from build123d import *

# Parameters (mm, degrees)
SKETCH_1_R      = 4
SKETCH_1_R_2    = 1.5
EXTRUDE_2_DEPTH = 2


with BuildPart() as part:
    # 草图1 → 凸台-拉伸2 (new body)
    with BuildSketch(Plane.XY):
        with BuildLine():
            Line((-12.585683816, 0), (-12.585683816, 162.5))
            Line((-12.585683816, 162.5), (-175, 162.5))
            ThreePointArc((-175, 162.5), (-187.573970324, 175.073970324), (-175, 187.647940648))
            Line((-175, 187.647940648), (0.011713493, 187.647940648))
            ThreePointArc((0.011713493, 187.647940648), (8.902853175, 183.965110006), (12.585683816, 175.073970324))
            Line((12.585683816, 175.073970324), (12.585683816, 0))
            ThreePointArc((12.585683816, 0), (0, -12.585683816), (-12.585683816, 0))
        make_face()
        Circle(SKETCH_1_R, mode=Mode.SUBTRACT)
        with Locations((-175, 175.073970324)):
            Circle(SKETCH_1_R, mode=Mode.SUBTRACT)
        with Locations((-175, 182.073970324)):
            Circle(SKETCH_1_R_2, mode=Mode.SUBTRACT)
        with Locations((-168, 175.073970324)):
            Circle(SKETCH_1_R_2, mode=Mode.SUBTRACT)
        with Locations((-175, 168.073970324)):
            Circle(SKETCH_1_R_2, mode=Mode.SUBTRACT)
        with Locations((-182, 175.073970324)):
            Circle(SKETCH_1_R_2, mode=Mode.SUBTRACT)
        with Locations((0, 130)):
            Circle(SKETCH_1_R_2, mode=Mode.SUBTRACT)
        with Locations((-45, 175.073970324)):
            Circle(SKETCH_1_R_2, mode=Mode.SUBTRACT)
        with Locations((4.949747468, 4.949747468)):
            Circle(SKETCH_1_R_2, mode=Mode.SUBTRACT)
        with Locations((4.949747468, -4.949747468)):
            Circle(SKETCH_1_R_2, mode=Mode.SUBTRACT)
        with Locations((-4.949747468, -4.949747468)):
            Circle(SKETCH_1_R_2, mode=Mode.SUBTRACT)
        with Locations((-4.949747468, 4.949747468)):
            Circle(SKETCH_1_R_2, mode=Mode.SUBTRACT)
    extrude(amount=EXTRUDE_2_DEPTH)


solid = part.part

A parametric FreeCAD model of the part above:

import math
import FreeCAD as App
import Part
import Sketcher
from FreeCAD import Vector
Q = App.Units.Quantity

doc = App.newDocument("Part")
body = doc.addObject("PartDesign::Body", "Body")

# Sketch on XY plane
sketch1 = body.newObject("Sketcher::SketchObject", "Sketch")
sketch1.AttachmentSupport = (doc.getObject("XY_Plane"), [""])
sketch1.MapMode = "FlatFace"
sketch1.addGeometry([
    Part.LineSegment(Vector(-12.585684, 162.5, 0), Vector(-12.585684, 0, 0)),  # 0
    Part.ArcOfCircle(Part.Circle(Vector(0, 0, 0), Vector(0, 0, 1), 12.585684), math.radians(180), math.radians(360)),  # 1
    Part.LineSegment(Vector(12.585684, 0, 0), Vector(12.585684, 175.07397, 0)),  # 2
    Part.ArcOfCircle(Part.Circle(Vector(0.011713, 175.07397, 0), Vector(0, 0, 1), 12.57397), math.radians(0), math.radians(90)),  # 3
    Part.LineSegment(Vector(0.011713, 187.647941, 0), Vector(-175, 187.647941, 0)),  # 4
    Part.ArcOfCircle(Part.Circle(Vector(-175, 175.07397, 0), Vector(0, 0, 1), 12.57397), math.radians(90), math.radians(270)),  # 5
    Part.LineSegment(Vector(-175, 162.5, 0), Vector(-12.585684, 162.5, 0)),  # 6
    Part.Circle(Vector(4.949747, -4.949747, 0), Vector(0, 0, 1), 1.5),  # 7
    Part.Circle(Vector(-4.949747, -4.949747, 0), Vector(0, 0, 1), 1.5),  # 8
    Part.Circle(Vector(4.949747, 4.949747, 0), Vector(0, 0, 1), 1.5),  # 9
    Part.Circle(Vector(0, 0, 0), Vector(0, 0, 1), 4),  # 10
    Part.Circle(Vector(-4.949747, 4.949747, 0), Vector(0, 0, 1), 1.5),  # 11
    Part.Circle(Vector(0, 130, 0), Vector(0, 0, 1), 1.5),  # 12
    Part.Circle(Vector(-45, 175.07397, 0), Vector(0, 0, 1), 1.5),  # 13
    Part.Circle(Vector(-175, 168.07397, 0), Vector(0, 0, 1), 1.5),  # 14
    Part.Circle(Vector(-168, 175.07397, 0), Vector(0, 0, 1), 1.5),  # 15
    Part.Circle(Vector(-175, 175.07397, 0), Vector(0, 0, 1), 4),  # 16
    Part.Circle(Vector(-182, 175.07397, 0), Vector(0, 0, 1), 1.5),  # 17
    Part.Circle(Vector(-175, 182.07397, 0), Vector(0, 0, 1), 1.5),  # 18
], False)
sketch1.addConstraint([
    Sketcher.Constraint("Tangent", 0, 2, 1, 1),
    Sketcher.Constraint("Tangent", 1, 2, 2, 1),
    Sketcher.Constraint("Tangent", 2, 2, 3, 1),
    Sketcher.Constraint("Tangent", 3, 2, 4, 1),
    Sketcher.Constraint("Tangent", 4, 2, 5, 1),
    Sketcher.Constraint("Tangent", 5, 2, 6, 1),
    Sketcher.Constraint("Coincident", 6, 2, 0, 1),
    Sketcher.Constraint("Vertical", 0),
    Sketcher.Constraint("Vertical", 2),
    Sketcher.Constraint("Horizontal", 4),
    Sketcher.Constraint("Horizontal", 6),
    Sketcher.Constraint("Coincident", 1, 3, -1, 1),
    Sketcher.Constraint("Coincident", 10, 3, -1, 1),
    Sketcher.Constraint("Coincident", 16, 3, 5, 3),
    Sketcher.Constraint("Equal", 3, 5),
    Sketcher.Constraint("Equal", 7, 8),
    Sketcher.Constraint("Equal", 8, 9),
    Sketcher.Constraint("Equal", 9, 11),
    Sketcher.Constraint("Equal", 11, 12),
    Sketcher.Constraint("Equal", 12, 13),
    Sketcher.Constraint("Equal", 13, 14),
    Sketcher.Constraint("Equal", 14, 15),
    Sketcher.Constraint("Equal", 10, 16),
    Sketcher.Constraint("Equal", 15, 17),
    Sketcher.Constraint("Equal", 17, 18),
    Sketcher.Constraint("Symmetric", 8, 3, 9, 3, -1, 1),
    Sketcher.Constraint("Symmetric", 7, 3, 11, 3, -1, 1),
    Sketcher.Constraint("Symmetric", 7, 3, 8, 3, -2),
    Sketcher.Constraint("PointOnObject", 12, 3, -2),
    Sketcher.Constraint("Horizontal", 5, 3, 13, 3),
    Sketcher.Constraint("Horizontal", 13, 3, 15, 3),
    Sketcher.Constraint("Horizontal", 16, 3, 17, 3),
    Sketcher.Constraint("Vertical", 5, 3, 14, 3),
    Sketcher.Constraint("Vertical", 16, 3, 18, 3),
    Sketcher.Constraint("Diameter", 7, Q("3 mm")),
    Sketcher.Constraint("Diameter", 10, Q("8 mm")),
    Sketcher.Constraint("DistanceY", 0, 2, 0, 1, Q("162.5 mm")),
    Sketcher.Constraint("DistanceX", 5, 3, -1, 1, Q("175 mm")),
    Sketcher.Constraint("DistanceY", -1, 1, 12, 3, Q("130 mm")),
    Sketcher.Constraint("DistanceX", 13, 3, -1, 1, Q("45 mm")),
    Sketcher.Constraint("DistanceX", 15, 3, -1, 1, Q("168 mm")),
    Sketcher.Constraint("DistanceX", 17, 3, -1, 1, Q("182 mm")),
    Sketcher.Constraint("DistanceY", 14, 3, 5, 3, Q("7 mm")),
    Sketcher.Constraint("DistanceY", 5, 3, 18, 3, Q("7 mm")),
    Sketcher.Constraint("Radius", 3, Q("12.57397 mm")),
    Sketcher.Constraint("Radius", 1, Q("12.585684 mm")),
    Sketcher.Constraint("DistanceX", 8, 3, 3, 3, Q("4.961461 mm")),
    Sketcher.Constraint("DistanceY", 7, 3, -1, 1, Q("4.949747 mm")),
])
pad1 = body.newObject("PartDesign::Pad", "Pad")
pad1.Profile = sketch1
pad1.Length = 2

doc.recompute()
